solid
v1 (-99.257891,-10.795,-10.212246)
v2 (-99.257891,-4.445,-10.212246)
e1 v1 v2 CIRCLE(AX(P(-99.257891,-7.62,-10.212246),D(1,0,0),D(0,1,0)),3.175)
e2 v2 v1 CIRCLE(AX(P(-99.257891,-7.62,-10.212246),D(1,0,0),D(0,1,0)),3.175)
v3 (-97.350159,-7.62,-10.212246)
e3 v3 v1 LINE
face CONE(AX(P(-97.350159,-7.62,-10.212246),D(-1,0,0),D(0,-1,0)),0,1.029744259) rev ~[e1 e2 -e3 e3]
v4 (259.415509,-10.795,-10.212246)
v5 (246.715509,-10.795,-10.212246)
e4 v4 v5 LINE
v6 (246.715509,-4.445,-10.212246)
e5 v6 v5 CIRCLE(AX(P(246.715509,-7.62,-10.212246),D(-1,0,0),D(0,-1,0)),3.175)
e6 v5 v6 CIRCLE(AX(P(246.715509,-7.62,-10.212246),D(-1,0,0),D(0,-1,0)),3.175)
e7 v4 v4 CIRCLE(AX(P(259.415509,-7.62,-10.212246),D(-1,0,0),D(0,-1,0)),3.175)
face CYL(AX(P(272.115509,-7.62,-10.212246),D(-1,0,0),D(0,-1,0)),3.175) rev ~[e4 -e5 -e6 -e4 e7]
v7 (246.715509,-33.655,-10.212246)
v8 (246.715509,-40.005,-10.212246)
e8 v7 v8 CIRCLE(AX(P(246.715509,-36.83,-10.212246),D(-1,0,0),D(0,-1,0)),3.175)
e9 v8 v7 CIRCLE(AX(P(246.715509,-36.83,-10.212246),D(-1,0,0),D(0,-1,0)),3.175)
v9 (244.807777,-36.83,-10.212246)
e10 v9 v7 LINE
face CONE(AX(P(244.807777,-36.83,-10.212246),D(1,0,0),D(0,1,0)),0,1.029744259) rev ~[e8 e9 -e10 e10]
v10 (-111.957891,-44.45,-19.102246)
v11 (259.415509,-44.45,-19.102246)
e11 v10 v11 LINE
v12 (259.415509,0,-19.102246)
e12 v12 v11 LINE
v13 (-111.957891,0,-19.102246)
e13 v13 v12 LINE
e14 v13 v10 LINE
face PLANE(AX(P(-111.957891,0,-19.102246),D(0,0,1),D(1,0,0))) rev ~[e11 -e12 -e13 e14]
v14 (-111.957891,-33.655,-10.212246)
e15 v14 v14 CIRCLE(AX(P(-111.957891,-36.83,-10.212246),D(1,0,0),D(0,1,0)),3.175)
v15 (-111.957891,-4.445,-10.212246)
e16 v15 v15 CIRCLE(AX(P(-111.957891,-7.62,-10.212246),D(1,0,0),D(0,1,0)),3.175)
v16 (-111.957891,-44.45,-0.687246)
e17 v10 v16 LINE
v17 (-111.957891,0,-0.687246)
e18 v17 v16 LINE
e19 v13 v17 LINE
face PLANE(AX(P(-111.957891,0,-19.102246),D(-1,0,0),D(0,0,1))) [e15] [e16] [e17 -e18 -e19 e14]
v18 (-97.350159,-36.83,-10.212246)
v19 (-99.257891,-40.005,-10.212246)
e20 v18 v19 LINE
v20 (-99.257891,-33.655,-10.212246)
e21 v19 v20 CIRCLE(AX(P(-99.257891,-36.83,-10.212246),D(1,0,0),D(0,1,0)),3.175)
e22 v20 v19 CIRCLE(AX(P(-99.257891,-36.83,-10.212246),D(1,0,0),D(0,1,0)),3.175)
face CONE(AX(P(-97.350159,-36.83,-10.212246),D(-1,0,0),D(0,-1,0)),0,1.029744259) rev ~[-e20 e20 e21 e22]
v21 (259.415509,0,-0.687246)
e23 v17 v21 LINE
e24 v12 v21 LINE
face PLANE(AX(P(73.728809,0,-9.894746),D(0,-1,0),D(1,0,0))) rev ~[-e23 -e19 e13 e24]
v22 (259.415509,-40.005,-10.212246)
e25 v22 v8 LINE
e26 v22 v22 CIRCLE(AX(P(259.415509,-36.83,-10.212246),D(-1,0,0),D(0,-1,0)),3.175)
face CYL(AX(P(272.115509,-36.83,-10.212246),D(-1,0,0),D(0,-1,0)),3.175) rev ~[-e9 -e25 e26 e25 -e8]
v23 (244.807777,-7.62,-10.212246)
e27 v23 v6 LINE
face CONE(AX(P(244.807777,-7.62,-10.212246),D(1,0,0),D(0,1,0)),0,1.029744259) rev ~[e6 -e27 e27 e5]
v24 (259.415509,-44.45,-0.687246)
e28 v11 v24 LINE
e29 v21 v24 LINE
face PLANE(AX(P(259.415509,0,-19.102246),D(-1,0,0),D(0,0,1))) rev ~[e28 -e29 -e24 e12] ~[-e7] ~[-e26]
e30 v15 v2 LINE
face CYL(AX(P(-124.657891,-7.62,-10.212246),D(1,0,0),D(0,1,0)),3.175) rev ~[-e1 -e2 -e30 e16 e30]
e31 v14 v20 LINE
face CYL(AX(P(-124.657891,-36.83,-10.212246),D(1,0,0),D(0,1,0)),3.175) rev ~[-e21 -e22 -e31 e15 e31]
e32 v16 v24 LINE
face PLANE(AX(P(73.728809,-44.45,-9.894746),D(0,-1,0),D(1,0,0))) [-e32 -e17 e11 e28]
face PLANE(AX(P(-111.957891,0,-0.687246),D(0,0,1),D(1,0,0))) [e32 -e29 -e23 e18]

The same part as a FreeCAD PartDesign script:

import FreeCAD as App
import Part
import Sketcher
from FreeCAD import Vector
Q = App.Units.Quantity

doc = App.newDocument("Part")
body = doc.addObject("PartDesign::Body", "Body")

# Sketch on XZ plane
sketch1 = body.newObject("Sketcher::SketchObject", "Sketch")
sketch1.AttachmentSupport = (doc.getObject("XZ_Plane"), [""])
sketch1.MapMode = "FlatFace"
sketch1.addGeometry([
    Part.LineSegment(Vector(-112, -1, 0), Vector(-112, -19, 0)),
    Part.LineSegment(Vector(-112, -19, 0), Vector(259, -19, 0)),
    Part.LineSegment(Vector(259, -19, 0), Vector(259, -1, 0)),
    Part.LineSegment(Vector(259, -1, 0), Vector(-112, -1, 0)),
], False)
sketch1.addConstraint([
    Sketcher.Constraint("Coincident", 0, 2, 1, 1),
    Sketcher.Constraint("Coincident", 1, 2, 2, 1),
    Sketcher.Constraint("Coincident", 2, 2, 3, 1),
    Sketcher.Constraint("Coincident", 3, 2, 0, 1),
    Sketcher.Constraint("Vertical", 0),
    Sketcher.Constraint("Horizontal", 1),
    Sketcher.Constraint("Vertical", 2),
    Sketcher.Constraint("Horizontal", 3),
    Sketcher.Constraint("DistanceX", 1, 1, 1, 2, Q("14.621 in")),
    Sketcher.Constraint("DistanceY", 0, 2, 0, 1, Q("0.725 in")),
    Sketcher.Constraint("DistanceX", 0, 2, -1, 1, 111.957891),
    Sketcher.Constraint("DistanceY", 0, 2, -1, 1, 19.102246),
])
pad1 = body.newObject("PartDesign::Pad", "Pad")
pad1.Profile = sketch1
pad1.Length = Q("1.75 in")

# Sketch on YZ plane
sketch2 = body.newObject("Sketcher::SketchObject", "Sketch001")
sketch2.AttachmentSupport = (doc.getObject("YZ_Plane"), [""])
sketch2.MapMode = "FlatFace"
sketch2.AttachmentOffset = App.Placement(Vector(0, 0, -111.957891), App.Rotation())
sketch2.addGeometry([
    Part.Circle(Vector(-7.6, -10.2, 0), Vector(0, 0, 1), 3.2),
    Part.Circle(Vector(-36.8, -10.2, 0), Vector(0, 0, 1), 3.2),
], False)
sketch2.addConstraint([
    Sketcher.Constraint("Equal", 0, 1),
    Sketcher.Constraint("Horizontal", 0, 3, 1, 3),
    Sketcher.Constraint("Diameter", 0, Q("0.25 in")),
    Sketcher.Constraint("DistanceX", 0, 3, -1, 1, Q("0.3 in")),
    Sketcher.Constraint("DistanceX", 1, 3, -1, 1, Q("1.45 in")),
    Sketcher.Constraint("DistanceY", 0, 3, -1, 1, 10.212246),
])
doc.recompute()
hole = body.newObject("PartDesign::Hole", "Hole")
hole.Profile = sketch2
hole.ThreadType = "None"
hole.Diameter = Q("0.25 in")
hole.DepthType = "Dimension"
hole.Depth = Q("0.5 in")
hole.DrillPoint = "Angled"
hole.DrillPointAngle = 118
hole.Reversed = True

# Sketch on YZ plane
sketch3 = body.newObject("Sketcher::SketchObject", "Sketch002")
sketch3.AttachmentSupport = (doc.getObject("YZ_Plane"), [""])
sketch3.MapMode = "FlatFace"
sketch3.AttachmentOffset = App.Placement(Vector(0, 0, 259.415509), App.Rotation())
sketch3.addGeometry(Part.Circle(Vector(-36.8, -10.2, 0), Vector(0, 0, 1), 3.2), False)
sketch3.addConstraint([
    Sketcher.Constraint("Diameter", 0, Q("0.25 in")),
    Sketcher.Constraint("DistanceX", 0, 3, -1, 1, Q("1.45 in")),
    Sketcher.Constraint("DistanceY", 0, 3, -1, 1, 10.212246),
])
doc.recompute()
hole2 = body.newObject("PartDesign::Hole", "Hole001")
hole2.Profile = sketch3
hole2.ThreadType = "None"
hole2.Diameter = Q("0.25 in")
hole2.DepthType = "Dimension"
hole2.Depth = Q("0.5 in")
hole2.DrillPoint = "Angled"
hole2.DrillPointAngle = 118

# Sketch on YZ plane
sketch4 = body.newObject("Sketcher::SketchObject", "Sketch003")
sketch4.AttachmentSupport = (doc.getObject("YZ_Plane"), [""])
sketch4.MapMode = "FlatFace"
sketch4.AttachmentOffset = App.Placement(Vector(0, 0, 259.415509), App.Rotation())
sketch4.addGeometry(Part.Circle(Vector(-7.6, -10.2, 0), Vector(0, 0, 1), 3.2), False)
sketch4.addConstraint([
    Sketcher.Constraint("Diameter", 0, Q("0.25 in")),
    Sketcher.Constraint("DistanceX", 0, 3, -1, 1, Q("0.3 in")),
    Sketcher.Constraint("DistanceY", 0, 3, -1, 1, 10.212246),
])
doc.recompute()
hole3 = body.newObject("PartDesign::Hole", "Hole002")
hole3.Profile = sketch4
hole3.ThreadType = "None"
hole3.Diameter = Q("0.25 in")
hole3.DepthType = "Dimension"
hole3.Depth = Q("0.5 in")
hole3.DrillPoint = "Angled"
hole3.DrillPointAngle = 118

doc.recompute()
